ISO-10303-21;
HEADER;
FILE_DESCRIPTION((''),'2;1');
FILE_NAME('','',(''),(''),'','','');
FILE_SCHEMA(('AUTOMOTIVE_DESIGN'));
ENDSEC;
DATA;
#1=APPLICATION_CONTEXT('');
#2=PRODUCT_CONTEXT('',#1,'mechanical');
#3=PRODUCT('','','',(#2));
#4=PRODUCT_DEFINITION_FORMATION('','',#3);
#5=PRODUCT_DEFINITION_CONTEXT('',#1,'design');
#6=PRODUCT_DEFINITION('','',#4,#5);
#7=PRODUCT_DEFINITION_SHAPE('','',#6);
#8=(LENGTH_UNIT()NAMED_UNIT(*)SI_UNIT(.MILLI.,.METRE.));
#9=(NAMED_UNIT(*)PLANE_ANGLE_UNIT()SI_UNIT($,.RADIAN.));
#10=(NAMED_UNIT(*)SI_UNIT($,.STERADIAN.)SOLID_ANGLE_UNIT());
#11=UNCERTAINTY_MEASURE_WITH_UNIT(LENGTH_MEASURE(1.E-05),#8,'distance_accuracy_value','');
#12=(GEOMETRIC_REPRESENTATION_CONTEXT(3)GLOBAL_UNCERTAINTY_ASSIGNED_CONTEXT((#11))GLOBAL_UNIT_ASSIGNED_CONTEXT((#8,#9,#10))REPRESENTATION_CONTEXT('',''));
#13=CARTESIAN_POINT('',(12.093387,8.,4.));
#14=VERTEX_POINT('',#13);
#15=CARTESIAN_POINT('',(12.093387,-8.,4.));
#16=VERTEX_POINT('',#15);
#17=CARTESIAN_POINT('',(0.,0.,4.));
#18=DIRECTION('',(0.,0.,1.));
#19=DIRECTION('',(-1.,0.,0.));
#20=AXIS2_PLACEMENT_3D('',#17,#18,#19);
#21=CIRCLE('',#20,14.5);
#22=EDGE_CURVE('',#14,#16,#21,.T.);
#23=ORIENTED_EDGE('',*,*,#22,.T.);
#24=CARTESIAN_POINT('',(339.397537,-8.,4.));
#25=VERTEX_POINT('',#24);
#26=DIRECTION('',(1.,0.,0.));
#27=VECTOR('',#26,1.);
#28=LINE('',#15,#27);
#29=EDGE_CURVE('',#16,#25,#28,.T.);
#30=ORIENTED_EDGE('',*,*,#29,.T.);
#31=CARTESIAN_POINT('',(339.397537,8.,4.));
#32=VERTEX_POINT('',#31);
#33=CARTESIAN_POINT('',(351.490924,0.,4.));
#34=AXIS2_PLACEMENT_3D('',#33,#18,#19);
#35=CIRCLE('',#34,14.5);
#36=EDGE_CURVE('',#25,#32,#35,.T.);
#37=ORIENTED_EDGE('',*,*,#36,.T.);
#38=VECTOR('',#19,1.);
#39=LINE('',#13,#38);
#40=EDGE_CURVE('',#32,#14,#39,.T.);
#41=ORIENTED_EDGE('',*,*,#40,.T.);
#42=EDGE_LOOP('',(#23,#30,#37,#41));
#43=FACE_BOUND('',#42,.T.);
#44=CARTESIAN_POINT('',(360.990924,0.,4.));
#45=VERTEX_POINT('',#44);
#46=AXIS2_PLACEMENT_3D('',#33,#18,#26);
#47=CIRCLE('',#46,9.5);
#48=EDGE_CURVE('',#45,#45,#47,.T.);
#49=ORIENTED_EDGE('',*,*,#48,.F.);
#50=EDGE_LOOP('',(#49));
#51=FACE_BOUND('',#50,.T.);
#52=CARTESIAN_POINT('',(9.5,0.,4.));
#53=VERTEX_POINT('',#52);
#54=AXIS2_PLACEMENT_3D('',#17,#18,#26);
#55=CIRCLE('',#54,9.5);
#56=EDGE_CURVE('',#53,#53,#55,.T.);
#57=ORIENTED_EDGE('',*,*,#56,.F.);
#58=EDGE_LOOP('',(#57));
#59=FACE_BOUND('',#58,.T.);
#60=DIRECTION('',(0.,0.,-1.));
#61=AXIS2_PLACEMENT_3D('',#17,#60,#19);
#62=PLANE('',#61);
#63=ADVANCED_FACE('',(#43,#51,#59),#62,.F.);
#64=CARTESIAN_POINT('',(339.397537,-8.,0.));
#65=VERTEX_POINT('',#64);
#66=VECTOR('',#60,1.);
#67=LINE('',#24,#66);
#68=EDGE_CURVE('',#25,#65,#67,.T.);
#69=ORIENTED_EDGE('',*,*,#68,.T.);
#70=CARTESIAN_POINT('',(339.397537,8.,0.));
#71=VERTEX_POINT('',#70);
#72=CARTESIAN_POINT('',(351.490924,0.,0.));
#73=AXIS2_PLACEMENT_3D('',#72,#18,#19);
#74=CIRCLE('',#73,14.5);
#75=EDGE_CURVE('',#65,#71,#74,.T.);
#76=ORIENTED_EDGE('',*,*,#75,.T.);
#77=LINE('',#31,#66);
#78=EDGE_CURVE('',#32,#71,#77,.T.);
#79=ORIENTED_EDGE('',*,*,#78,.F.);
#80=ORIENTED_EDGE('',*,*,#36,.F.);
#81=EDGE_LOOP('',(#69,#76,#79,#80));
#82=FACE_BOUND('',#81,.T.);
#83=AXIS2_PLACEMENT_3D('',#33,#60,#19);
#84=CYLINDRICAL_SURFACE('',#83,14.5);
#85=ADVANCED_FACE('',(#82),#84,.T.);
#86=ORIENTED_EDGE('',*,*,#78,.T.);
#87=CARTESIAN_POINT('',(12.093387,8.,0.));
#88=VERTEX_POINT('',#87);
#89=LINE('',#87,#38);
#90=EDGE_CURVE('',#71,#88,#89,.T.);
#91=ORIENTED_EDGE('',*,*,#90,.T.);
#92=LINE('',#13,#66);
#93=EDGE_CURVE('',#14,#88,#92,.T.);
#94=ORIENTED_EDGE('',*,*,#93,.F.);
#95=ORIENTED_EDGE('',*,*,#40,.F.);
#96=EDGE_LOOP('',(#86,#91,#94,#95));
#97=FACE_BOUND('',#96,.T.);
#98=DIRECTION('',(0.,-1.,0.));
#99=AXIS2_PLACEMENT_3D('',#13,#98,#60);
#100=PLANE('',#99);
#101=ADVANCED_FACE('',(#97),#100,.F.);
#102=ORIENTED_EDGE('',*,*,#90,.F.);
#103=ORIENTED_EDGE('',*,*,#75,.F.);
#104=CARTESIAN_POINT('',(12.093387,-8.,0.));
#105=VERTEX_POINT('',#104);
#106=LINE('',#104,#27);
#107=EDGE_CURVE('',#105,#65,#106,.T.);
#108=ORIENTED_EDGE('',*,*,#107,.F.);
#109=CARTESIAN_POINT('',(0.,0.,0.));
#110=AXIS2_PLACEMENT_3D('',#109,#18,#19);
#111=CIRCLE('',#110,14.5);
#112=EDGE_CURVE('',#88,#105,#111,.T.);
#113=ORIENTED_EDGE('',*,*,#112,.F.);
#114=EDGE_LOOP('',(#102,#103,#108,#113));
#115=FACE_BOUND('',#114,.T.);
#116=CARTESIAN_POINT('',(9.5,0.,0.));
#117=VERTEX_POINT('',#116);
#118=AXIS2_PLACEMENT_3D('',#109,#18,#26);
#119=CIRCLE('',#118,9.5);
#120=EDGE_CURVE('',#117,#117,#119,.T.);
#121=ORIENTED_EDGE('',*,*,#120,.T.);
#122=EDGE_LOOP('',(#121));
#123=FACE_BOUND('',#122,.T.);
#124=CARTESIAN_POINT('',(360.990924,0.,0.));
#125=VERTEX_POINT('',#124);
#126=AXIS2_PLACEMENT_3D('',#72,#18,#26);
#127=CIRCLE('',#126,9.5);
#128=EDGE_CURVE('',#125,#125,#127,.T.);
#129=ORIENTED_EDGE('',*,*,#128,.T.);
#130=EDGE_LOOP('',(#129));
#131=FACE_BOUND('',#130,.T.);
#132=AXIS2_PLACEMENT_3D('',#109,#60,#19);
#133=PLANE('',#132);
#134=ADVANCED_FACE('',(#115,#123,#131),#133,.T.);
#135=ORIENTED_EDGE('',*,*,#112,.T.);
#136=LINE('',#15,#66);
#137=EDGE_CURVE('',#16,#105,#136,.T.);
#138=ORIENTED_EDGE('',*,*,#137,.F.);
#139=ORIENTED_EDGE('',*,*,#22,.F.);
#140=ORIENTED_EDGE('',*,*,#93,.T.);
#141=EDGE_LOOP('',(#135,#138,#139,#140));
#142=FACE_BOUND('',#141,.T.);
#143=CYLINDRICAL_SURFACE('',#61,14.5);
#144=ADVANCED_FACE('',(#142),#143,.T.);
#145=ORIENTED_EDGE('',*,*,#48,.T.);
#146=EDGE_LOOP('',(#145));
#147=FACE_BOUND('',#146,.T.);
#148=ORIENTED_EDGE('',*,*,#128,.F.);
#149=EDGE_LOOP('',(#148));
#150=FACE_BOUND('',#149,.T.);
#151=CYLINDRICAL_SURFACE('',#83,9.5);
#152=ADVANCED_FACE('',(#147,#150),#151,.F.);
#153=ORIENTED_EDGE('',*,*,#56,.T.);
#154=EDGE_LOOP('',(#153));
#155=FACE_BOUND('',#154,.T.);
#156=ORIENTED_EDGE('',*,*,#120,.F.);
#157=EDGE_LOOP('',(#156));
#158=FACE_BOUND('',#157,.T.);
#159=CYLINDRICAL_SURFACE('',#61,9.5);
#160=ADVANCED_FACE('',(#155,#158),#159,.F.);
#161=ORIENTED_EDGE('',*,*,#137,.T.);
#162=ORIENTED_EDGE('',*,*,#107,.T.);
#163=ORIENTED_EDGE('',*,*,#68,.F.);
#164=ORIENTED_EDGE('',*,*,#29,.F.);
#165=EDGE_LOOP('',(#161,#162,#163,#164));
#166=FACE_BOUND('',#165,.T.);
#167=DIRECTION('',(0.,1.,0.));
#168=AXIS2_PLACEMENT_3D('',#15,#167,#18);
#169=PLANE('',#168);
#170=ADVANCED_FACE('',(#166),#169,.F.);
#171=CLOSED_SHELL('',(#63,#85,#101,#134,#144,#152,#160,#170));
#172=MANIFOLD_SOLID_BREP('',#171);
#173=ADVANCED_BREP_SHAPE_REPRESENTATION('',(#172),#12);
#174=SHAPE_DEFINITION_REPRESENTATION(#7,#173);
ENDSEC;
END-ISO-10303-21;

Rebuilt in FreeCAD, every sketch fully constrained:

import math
import FreeCAD as App
import Part
import Sketcher

V = App.Vector

doc = App.newDocument("Part")
body = doc.addObject("PartDesign::Body", "Body")

# Sketch on XY plane
sketch1 = body.newObject("Sketcher::SketchObject", "Sketch")
sketch1.AttachmentSupport = (doc.getObject("XY_Plane"), [""])
sketch1.MapMode = "FlatFace"
sketch1.addGeometry([
    Part.LineSegment(V(339, 8, 0), V(12, 8, 0)),  # 0
    Part.ArcOfCircle(Part.Circle(V(0, 0, 0), V(0, 0, 1), 14), math.radians(33), math.radians(327)),  # 1
    Part.LineSegment(V(12, -8, 0), V(339, -8, 0)),  # 2
    Part.ArcOfCircle(Part.Circle(V(351, 0, 0), V(0, 0, 1), 14), math.radians(-147), math.radians(147)),  # 3
    Part.Circle(V(351, 0, 0), V(0, 0, 1), 10),  # 4
    Part.Circle(V(0, 0, 0), V(0, 0, 1), 10),  # 5
], False)
sketch1.addConstraint([
    Sketcher.Constraint("Coincident", 0, 2, 1, 1),
    Sketcher.Constraint("Coincident", 1, 2, 2, 1),
    Sketcher.Constraint("Coincident", 2, 2, 3, 1),
    Sketcher.Constraint("Coincident", 3, 2, 0, 1),
    Sketcher.Constraint("Horizontal", 0),
    Sketcher.Constraint("Horizontal", 2),
    Sketcher.Constraint("Coincident", 1, 3, -1, 1),
    Sketcher.Constraint("Coincident", 5, 3, -1, 1),
    Sketcher.Constraint("Coincident", 4, 3, 3, 3),
    Sketcher.Constraint("Equal", 1, 3),
    Sketcher.Constraint("Equal", 4, 5),
    Sketcher.Constraint("Symmetric", 2, 2, 3, 2, -1),
    Sketcher.Constraint("Diameter", 4, 19.0),
    Sketcher.Constraint("Radius", 1, 14.5),
    Sketcher.Constraint("DistanceY", -1, 1, 0, 2, 8.0),
    Sketcher.Constraint("DistanceX", 0, 2, 0, 1, 327.304151),
])
pad1 = body.newObject("PartDesign::Pad", "Pad")
pad1.Profile = sketch1
pad1.Length = 4

doc.recompute()
